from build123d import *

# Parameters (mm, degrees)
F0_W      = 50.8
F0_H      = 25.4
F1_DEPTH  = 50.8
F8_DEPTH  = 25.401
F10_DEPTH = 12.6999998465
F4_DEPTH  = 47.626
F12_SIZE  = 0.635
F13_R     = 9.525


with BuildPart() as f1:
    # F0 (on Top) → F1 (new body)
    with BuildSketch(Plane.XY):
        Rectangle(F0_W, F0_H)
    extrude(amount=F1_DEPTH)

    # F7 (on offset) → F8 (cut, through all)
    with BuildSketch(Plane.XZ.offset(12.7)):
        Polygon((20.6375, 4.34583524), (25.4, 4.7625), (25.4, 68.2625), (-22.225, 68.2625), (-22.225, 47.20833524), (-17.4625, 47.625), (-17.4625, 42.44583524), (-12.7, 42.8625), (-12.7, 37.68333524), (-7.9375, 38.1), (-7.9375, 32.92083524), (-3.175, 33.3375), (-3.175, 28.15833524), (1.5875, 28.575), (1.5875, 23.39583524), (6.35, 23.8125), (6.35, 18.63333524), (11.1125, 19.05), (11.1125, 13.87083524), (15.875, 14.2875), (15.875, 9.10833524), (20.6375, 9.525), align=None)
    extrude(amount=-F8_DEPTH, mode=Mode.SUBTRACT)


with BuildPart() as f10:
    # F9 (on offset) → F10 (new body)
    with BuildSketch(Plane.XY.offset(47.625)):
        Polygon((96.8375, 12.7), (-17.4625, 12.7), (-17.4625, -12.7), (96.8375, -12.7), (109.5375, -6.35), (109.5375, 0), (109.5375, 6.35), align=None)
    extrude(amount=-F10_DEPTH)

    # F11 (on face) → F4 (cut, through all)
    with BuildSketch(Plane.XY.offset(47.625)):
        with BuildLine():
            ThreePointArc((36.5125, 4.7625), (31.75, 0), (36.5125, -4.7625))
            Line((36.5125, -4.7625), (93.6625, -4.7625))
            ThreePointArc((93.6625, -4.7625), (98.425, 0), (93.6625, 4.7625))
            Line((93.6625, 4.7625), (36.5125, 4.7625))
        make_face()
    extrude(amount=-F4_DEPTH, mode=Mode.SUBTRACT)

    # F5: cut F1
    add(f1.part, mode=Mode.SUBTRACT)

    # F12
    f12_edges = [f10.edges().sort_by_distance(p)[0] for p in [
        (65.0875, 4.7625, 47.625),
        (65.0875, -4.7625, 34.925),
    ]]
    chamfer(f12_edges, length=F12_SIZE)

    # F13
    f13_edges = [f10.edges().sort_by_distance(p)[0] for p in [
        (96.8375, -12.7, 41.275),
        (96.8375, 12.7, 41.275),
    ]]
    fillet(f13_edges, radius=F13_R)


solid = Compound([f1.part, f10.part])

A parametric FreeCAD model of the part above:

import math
import FreeCAD as App
import Part
import Sketcher
from FreeCAD import Vector
Q = App.Units.Quantity


def edges_at(feature, points):
    """Names of the edges that pass closest to the given points."""
    edges = feature.Shape.Edges
    near = lambda p: min(range(len(edges)), key=lambda i: edges[i].distToShape(Part.Vertex(*p))[0])
    return sorted({f"Edge{near(p) + 1}" for p in points})

doc = App.newDocument("Part")
body = doc.addObject("PartDesign::Body", "Body")

# Sketch on XY plane
sketch1 = body.newObject("Sketcher::SketchObject", "Sketch")
sketch1.AttachmentSupport = (doc.getObject("XY_Plane"), [""])
sketch1.MapMode = "FlatFace"
sketch1.addGeometry([
    Part.LineSegment(Vector(-25, 13, 0), Vector(-25, -13, 0)),
    Part.LineSegment(Vector(-25, -13, 0), Vector(25, -13, 0)),
    Part.LineSegment(Vector(25, -13, 0), Vector(25, 13, 0)),
    Part.LineSegment(Vector(25, 13, 0), Vector(-25, 13, 0)),
], False)
sketch1.addConstraint([
    Sketcher.Constraint("Coincident", 0, 2, 1, 1),
    Sketcher.Constraint("Coincident", 1, 2, 2, 1),
    Sketcher.Constraint("Coincident", 2, 2, 3, 1),
    Sketcher.Constraint("Coincident", 3, 2, 0, 1),
    Sketcher.Constraint("Vertical", 0),
    Sketcher.Constraint("Horizontal", 1),
    Sketcher.Constraint("Vertical", 2),
    Sketcher.Constraint("Horizontal", 3),
    Sketcher.Constraint("Symmetric", 0, 2, 2, 2, -1, 1),
    Sketcher.Constraint("DistanceX", 1, 1, 1, 2, Q("2 in")),
    Sketcher.Constraint("DistanceY", 0, 2, 0, 1, Q("1 in")),
])
pad1 = body.newObject("PartDesign::Pad", "Pad")
pad1.Profile = sketch1
pad1.Length = Q("2 in")

# Sketch on XZ plane
sketch2 = body.newObject("Sketcher::SketchObject", "Sketch001")
sketch2.AttachmentSupport = (doc.getObject("XZ_Plane"), [""])
sketch2.MapMode = "FlatFace"
sketch2.AttachmentOffset = App.Placement(Vector(0, 0, 0.5 * 25.4), App.Rotation())
sketch2.addGeometry([
    Part.LineSegment(Vector(20.6, 4.3, 0), Vector(25.4, 4.8, 0)),  # 0
    Part.LineSegment(Vector(25.4, 4.8, 0), Vector(25.4, 68.3, 0)),  # 1
    Part.LineSegment(Vector(25.4, 68.3, 0), Vector(-22.2, 68.3, 0)),  # 2
    Part.LineSegment(Vector(-22.2, 68.3, 0), Vector(-22.2, 47.2, 0)),  # 3
    Part.LineSegment(Vector(-22.2, 47.2, 0), Vector(-17.5, 47.6, 0)),  # 4
    Part.LineSegment(Vector(-17.5, 47.6, 0), Vector(-17.5, 42.4, 0)),  # 5
    Part.LineSegment(Vector(-17.5, 42.4, 0), Vector(-12.7, 42.9, 0)),  # 6
    Part.LineSegment(Vector(-12.7, 42.9, 0), Vector(-12.7, 37.7, 0)),  # 7
    Part.LineSegment(Vector(-12.7, 37.7, 0), Vector(-7.9, 38.1, 0)),  # 8
    Part.LineSegment(Vector(-7.9, 38.1, 0), Vector(-7.9, 32.9, 0)),  # 9
    Part.LineSegment(Vector(-7.9, 32.9, 0), Vector(-3.2, 33.3, 0)),  # 10
    Part.LineSegment(Vector(-3.2, 33.3, 0), Vector(-3.2, 28.2, 0)),  # 11
    Part.LineSegment(Vector(-3.2, 28.2, 0), Vector(1.6, 28.6, 0)),  # 12
    Part.LineSegment(Vector(1.6, 28.6, 0), Vector(1.6, 23.4, 0)),  # 13
    Part.LineSegment(Vector(1.6, 23.4, 0), Vector(6.3, 23.8, 0)),  # 14
    Part.LineSegment(Vector(6.3, 23.8, 0), Vector(6.3, 18.6, 0)),  # 15
    Part.LineSegment(Vector(6.3, 18.6, 0), Vector(11.1, 19.1, 0)),  # 16
    Part.LineSegment(Vector(11.1, 19.1, 0), Vector(11.1, 13.9, 0)),  # 17
    Part.LineSegment(Vector(11.1, 13.9, 0), Vector(15.9, 14.3, 0)),  # 18
    Part.LineSegment(Vector(15.9, 14.3, 0), Vector(15.9, 9.1, 0)),  # 19
    Part.LineSegment(Vector(15.9, 9.1, 0), Vector(20.6, 9.5, 0)),  # 20
    Part.LineSegment(Vector(20.6, 9.5, 0), Vector(20.6, 4.3, 0)),  # 21
], False)
sketch2.addConstraint([
    Sketcher.Constraint("Coincident", 0, 2, 1, 1),
    Sketcher.Constraint("Coincident", 1, 2, 2, 1),
    Sketcher.Constraint("Coincident", 2, 2, 3, 1),
    Sketcher.Constraint("Coincident", 3, 2, 4, 1),
    Sketcher.Constraint("Coincident", 4, 2, 5, 1),
    Sketcher.Constraint("Coincident", 5, 2, 6, 1),
    Sketcher.Constraint("Coincident", 6, 2, 7, 1),
    Sketcher.Constraint("Coincident", 7, 2, 8, 1),
    Sketcher.Constraint("Coincident", 8, 2, 9, 1),
    Sketcher.Constraint("Coincident", 9, 2, 10, 1),
    Sketcher.Constraint("Coincident", 10, 2, 11, 1),
    Sketcher.Constraint("Coincident", 11, 2, 12, 1),
    Sketcher.Constraint("Coincident", 12, 2, 13, 1),
    Sketcher.Constraint("Coincident", 13, 2, 14, 1),
    Sketcher.Constraint("Coincident", 14, 2, 15, 1),
    Sketcher.Constraint("Coincident", 15, 2, 16, 1),
    Sketcher.Constraint("Coincident", 16, 2, 17, 1),
    Sketcher.Constraint("Coincident", 17, 2, 18, 1),
    Sketcher.Constraint("Coincident", 18, 2, 19, 1),
    Sketcher.Constraint("Coincident", 19, 2, 20, 1),
    Sketcher.Constraint("Coincident", 20, 2, 21, 1),
    Sketcher.Constraint("Coincident", 21, 2, 0, 1),
    Sketcher.Constraint("Vertical", 1),
    Sketcher.Constraint("Horizontal", 2),
    Sketcher.Constraint("Vertical", 3),
    Sketcher.Constraint("Vertical", 5),
    Sketcher.Constraint("Vertical", 7),
    Sketcher.Constraint("Vertical", 9),
    Sketcher.Constraint("Vertical", 11),
    Sketcher.Constraint("Vertical", 13),
    Sketcher.Constraint("Vertical", 15),
    Sketcher.Constraint("Vertical", 17),
    Sketcher.Constraint("Vertical", 19),
    Sketcher.Constraint("Vertical", 21),
    Sketcher.Constraint("Parallel", 0, 4),
    Sketcher.Constraint("Parallel", 4, 6),
    Sketcher.Constraint("Parallel", 6, 8),
    Sketcher.Constraint("Parallel", 8, 10),
    Sketcher.Constraint("Parallel", 10, 12),
    Sketcher.Constraint("Parallel", 12, 14),
    Sketcher.Constraint("Parallel", 14, 16),
    Sketcher.Constraint("Parallel", 16, 18),
    Sketcher.Constraint("Parallel", 18, 20),
    Sketcher.Constraint("Equal", 5, 7),
    Sketcher.Constraint("Equal", 7, 9),
    Sketcher.Constraint("Equal", 9, 11),
    Sketcher.Constraint("Equal", 11, 13),
    Sketcher.Constraint("Equal", 13, 15),
    Sketcher.Constraint("Equal", 15, 17),
    Sketcher.Constraint("Equal", 17, 19),
    Sketcher.Constraint("Equal", 19, 21),
    Sketcher.Constraint("Equal", 0, 4),
    Sketcher.Constraint("Equal", 4, 6),
    Sketcher.Constraint("Equal", 6, 8),
    Sketcher.Constraint("Equal", 8, 10),
    Sketcher.Constraint("Equal", 10, 12),
    Sketcher.Constraint("Equal", 12, 14),
    Sketcher.Constraint("Equal", 14, 16),
    Sketcher.Constraint("Equal", 16, 18),
    Sketcher.Constraint("Equal", 18, 20),
    Sketcher.Constraint("DistanceY", 1, 1, 1, 2, Q("2.5 in")),
    Sketcher.Constraint("DistanceX", -1, 1, 0, 2, Q("1 in")),
    Sketcher.Constraint("Angle", 0, Q("5 deg")),
    Sketcher.Constraint("DistanceY", 6, 2, 2, 2, Q("1 in")),
    Sketcher.Constraint("DistanceX", 6, 2, -1, 1, Q("0.5 in")),
    Sketcher.Constraint("DistanceY", -1, 1, 8, 2, Q("1.5 in")),
])
pocket1 = body.newObject("PartDesign::Pocket", "Pocket")
pocket1.Profile = sketch2
pocket1.Type = "ThroughAll"
body2 = doc.addObject("PartDesign::Body", "Body001")

# Sketch on XY plane
sketch3 = body2.newObject("Sketcher::SketchObject", "Sketch002")
sketch3.AttachmentSupport = (doc.getObject("XY_Plane001"), [""])
sketch3.MapMode = "FlatFace"
sketch3.AttachmentOffset = App.Placement(Vector(0, 0, 1.875 * 25.4), App.Rotation())
sketch3.addGeometry([
    Part.LineSegment(Vector(97, 13, 0), Vector(-17, 13, 0)),  # 0
    Part.LineSegment(Vector(-17, 13, 0), Vector(-17, -13, 0)),  # 1
    Part.LineSegment(Vector(-17, -13, 0), Vector(97, -13, 0)),  # 2
    Part.LineSegment(Vector(97, -13, 0), Vector(110, -6, 0)),  # 3
    Part.LineSegment(Vector(110, -6, 0), Vector(110, 6, 0)),  # 4
    Part.LineSegment(Vector(110, 6, 0), Vector(97, 13, 0)),  # 5
], False)
sketch3.addConstraint([
    Sketcher.Constraint("Coincident", 0, 2, 1, 1),
    Sketcher.Constraint("Coincident", 1, 2, 2, 1),
    Sketcher.Constraint("Coincident", 2, 2, 3, 1),
    Sketcher.Constraint("Coincident", 3, 2, 4, 1),
    Sketcher.Constraint("Coincident", 4, 2, 5, 1),
    Sketcher.Constraint("Coincident", 5, 2, 0, 1),
    Sketcher.Constraint("Horizontal", 0),
    Sketcher.Constraint("Vertical", 1),
    Sketcher.Constraint("Horizontal", 2),
    Sketcher.Constraint("Vertical", 4),
    Sketcher.Constraint("Symmetric", 2, 2, 5, 2, -1),
    Sketcher.Constraint("Equal", 3, 5),
    Sketcher.Constraint("DistanceY", 1, 2, 1, 1, Q("1 in")),
    Sketcher.Constraint("DistanceX", 0, 2, 0, 1, Q("4.5 in")),
    Sketcher.Constraint("DistanceY", 4, 1, 4, 2, Q("0.5 in")),
    Sketcher.Constraint("DistanceX", 1, 2, 3, 2, Q("5 in")),
    Sketcher.Constraint("DistanceX", 0, 2, -1, 1, Q("0.6875 in")),
])
pad2 = body2.newObject("PartDesign::Pad", "Pad001")
pad2.Profile = sketch3
pad2.Length = Q("0.5 in")
pad2.Reversed = True

# Sketch on XY plane
sketch4 = body2.newObject("Sketcher::SketchObject", "Sketch003")
sketch4.AttachmentSupport = (doc.getObject("XY_Plane001"), [""])
sketch4.MapMode = "FlatFace"
sketch4.AttachmentOffset = App.Placement(Vector(0, 0, 1.875 * 25.4), App.Rotation())
sketch4.addGeometry([
    Part.ArcOfCircle(Part.Circle(Vector(36.5, 0, 0), Vector(0, 0, 1), 4.8), math.radians(90), math.radians(270)),
    Part.LineSegment(Vector(36.5, -4.8, 0), Vector(93.7, -4.8, 0)),
    Part.ArcOfCircle(Part.Circle(Vector(93.7, 0, 0), Vector(0, 0, 1), 4.8), math.radians(-90), math.radians(90)),
    Part.LineSegment(Vector(93.7, 4.8, 0), Vector(36.5, 4.8, 0)),
], False)
sketch4.addConstraint([
    Sketcher.Constraint("Tangent", 0, 2, 1, 1),
    Sketcher.Constraint("Tangent", 1, 2, 2, 1),
    Sketcher.Constraint("Tangent", 2, 2, 3, 1),
    Sketcher.Constraint("Tangent", 3, 2, 0, 1),
    Sketcher.Constraint("Horizontal", 1),
    Sketcher.Constraint("Horizontal", 3),
    Sketcher.Constraint("PointOnObject", 0, 3, -1),
    Sketcher.Constraint("Radius", 0, Q("0.1875 in")),
    Sketcher.Constraint("DistanceX", 1, 1, 1, 2, Q("2.25 in")),
    Sketcher.Constraint("DistanceX", -1, 1, 0, 3, Q("1.4375 in")),
])
pocket2 = body2.newObject("PartDesign::Pocket", "Pocket001")
pocket2.Profile = sketch4
pocket2.Type = "ThroughAll"
doc.recompute()

body3 = doc.addObject("PartDesign::Body", "Body002")
body3.BaseFeature = body
boolean = body2.newObject("PartDesign::Boolean", "Boolean")
boolean.Type = "Cut"
boolean.addObjects([body3])
doc.recompute()

chamfer = body2.newObject("PartDesign::Chamfer", "Chamfer")
chamfer.Base = (boolean, edges_at(boolean, [(65.088, 4.763, 47.625), (65.088, -4.763, 34.925)]))
chamfer.Size = Q("0.025 in")
doc.recompute()

fillet = body2.newObject("PartDesign::Fillet", "Fillet")
fillet.Base = (chamfer, edges_at(chamfer, [(96.838, -12.7, 41.275), (96.838, 12.7, 41.275)]))
fillet.Radius = Q("0.375 in")

doc.recompute()
